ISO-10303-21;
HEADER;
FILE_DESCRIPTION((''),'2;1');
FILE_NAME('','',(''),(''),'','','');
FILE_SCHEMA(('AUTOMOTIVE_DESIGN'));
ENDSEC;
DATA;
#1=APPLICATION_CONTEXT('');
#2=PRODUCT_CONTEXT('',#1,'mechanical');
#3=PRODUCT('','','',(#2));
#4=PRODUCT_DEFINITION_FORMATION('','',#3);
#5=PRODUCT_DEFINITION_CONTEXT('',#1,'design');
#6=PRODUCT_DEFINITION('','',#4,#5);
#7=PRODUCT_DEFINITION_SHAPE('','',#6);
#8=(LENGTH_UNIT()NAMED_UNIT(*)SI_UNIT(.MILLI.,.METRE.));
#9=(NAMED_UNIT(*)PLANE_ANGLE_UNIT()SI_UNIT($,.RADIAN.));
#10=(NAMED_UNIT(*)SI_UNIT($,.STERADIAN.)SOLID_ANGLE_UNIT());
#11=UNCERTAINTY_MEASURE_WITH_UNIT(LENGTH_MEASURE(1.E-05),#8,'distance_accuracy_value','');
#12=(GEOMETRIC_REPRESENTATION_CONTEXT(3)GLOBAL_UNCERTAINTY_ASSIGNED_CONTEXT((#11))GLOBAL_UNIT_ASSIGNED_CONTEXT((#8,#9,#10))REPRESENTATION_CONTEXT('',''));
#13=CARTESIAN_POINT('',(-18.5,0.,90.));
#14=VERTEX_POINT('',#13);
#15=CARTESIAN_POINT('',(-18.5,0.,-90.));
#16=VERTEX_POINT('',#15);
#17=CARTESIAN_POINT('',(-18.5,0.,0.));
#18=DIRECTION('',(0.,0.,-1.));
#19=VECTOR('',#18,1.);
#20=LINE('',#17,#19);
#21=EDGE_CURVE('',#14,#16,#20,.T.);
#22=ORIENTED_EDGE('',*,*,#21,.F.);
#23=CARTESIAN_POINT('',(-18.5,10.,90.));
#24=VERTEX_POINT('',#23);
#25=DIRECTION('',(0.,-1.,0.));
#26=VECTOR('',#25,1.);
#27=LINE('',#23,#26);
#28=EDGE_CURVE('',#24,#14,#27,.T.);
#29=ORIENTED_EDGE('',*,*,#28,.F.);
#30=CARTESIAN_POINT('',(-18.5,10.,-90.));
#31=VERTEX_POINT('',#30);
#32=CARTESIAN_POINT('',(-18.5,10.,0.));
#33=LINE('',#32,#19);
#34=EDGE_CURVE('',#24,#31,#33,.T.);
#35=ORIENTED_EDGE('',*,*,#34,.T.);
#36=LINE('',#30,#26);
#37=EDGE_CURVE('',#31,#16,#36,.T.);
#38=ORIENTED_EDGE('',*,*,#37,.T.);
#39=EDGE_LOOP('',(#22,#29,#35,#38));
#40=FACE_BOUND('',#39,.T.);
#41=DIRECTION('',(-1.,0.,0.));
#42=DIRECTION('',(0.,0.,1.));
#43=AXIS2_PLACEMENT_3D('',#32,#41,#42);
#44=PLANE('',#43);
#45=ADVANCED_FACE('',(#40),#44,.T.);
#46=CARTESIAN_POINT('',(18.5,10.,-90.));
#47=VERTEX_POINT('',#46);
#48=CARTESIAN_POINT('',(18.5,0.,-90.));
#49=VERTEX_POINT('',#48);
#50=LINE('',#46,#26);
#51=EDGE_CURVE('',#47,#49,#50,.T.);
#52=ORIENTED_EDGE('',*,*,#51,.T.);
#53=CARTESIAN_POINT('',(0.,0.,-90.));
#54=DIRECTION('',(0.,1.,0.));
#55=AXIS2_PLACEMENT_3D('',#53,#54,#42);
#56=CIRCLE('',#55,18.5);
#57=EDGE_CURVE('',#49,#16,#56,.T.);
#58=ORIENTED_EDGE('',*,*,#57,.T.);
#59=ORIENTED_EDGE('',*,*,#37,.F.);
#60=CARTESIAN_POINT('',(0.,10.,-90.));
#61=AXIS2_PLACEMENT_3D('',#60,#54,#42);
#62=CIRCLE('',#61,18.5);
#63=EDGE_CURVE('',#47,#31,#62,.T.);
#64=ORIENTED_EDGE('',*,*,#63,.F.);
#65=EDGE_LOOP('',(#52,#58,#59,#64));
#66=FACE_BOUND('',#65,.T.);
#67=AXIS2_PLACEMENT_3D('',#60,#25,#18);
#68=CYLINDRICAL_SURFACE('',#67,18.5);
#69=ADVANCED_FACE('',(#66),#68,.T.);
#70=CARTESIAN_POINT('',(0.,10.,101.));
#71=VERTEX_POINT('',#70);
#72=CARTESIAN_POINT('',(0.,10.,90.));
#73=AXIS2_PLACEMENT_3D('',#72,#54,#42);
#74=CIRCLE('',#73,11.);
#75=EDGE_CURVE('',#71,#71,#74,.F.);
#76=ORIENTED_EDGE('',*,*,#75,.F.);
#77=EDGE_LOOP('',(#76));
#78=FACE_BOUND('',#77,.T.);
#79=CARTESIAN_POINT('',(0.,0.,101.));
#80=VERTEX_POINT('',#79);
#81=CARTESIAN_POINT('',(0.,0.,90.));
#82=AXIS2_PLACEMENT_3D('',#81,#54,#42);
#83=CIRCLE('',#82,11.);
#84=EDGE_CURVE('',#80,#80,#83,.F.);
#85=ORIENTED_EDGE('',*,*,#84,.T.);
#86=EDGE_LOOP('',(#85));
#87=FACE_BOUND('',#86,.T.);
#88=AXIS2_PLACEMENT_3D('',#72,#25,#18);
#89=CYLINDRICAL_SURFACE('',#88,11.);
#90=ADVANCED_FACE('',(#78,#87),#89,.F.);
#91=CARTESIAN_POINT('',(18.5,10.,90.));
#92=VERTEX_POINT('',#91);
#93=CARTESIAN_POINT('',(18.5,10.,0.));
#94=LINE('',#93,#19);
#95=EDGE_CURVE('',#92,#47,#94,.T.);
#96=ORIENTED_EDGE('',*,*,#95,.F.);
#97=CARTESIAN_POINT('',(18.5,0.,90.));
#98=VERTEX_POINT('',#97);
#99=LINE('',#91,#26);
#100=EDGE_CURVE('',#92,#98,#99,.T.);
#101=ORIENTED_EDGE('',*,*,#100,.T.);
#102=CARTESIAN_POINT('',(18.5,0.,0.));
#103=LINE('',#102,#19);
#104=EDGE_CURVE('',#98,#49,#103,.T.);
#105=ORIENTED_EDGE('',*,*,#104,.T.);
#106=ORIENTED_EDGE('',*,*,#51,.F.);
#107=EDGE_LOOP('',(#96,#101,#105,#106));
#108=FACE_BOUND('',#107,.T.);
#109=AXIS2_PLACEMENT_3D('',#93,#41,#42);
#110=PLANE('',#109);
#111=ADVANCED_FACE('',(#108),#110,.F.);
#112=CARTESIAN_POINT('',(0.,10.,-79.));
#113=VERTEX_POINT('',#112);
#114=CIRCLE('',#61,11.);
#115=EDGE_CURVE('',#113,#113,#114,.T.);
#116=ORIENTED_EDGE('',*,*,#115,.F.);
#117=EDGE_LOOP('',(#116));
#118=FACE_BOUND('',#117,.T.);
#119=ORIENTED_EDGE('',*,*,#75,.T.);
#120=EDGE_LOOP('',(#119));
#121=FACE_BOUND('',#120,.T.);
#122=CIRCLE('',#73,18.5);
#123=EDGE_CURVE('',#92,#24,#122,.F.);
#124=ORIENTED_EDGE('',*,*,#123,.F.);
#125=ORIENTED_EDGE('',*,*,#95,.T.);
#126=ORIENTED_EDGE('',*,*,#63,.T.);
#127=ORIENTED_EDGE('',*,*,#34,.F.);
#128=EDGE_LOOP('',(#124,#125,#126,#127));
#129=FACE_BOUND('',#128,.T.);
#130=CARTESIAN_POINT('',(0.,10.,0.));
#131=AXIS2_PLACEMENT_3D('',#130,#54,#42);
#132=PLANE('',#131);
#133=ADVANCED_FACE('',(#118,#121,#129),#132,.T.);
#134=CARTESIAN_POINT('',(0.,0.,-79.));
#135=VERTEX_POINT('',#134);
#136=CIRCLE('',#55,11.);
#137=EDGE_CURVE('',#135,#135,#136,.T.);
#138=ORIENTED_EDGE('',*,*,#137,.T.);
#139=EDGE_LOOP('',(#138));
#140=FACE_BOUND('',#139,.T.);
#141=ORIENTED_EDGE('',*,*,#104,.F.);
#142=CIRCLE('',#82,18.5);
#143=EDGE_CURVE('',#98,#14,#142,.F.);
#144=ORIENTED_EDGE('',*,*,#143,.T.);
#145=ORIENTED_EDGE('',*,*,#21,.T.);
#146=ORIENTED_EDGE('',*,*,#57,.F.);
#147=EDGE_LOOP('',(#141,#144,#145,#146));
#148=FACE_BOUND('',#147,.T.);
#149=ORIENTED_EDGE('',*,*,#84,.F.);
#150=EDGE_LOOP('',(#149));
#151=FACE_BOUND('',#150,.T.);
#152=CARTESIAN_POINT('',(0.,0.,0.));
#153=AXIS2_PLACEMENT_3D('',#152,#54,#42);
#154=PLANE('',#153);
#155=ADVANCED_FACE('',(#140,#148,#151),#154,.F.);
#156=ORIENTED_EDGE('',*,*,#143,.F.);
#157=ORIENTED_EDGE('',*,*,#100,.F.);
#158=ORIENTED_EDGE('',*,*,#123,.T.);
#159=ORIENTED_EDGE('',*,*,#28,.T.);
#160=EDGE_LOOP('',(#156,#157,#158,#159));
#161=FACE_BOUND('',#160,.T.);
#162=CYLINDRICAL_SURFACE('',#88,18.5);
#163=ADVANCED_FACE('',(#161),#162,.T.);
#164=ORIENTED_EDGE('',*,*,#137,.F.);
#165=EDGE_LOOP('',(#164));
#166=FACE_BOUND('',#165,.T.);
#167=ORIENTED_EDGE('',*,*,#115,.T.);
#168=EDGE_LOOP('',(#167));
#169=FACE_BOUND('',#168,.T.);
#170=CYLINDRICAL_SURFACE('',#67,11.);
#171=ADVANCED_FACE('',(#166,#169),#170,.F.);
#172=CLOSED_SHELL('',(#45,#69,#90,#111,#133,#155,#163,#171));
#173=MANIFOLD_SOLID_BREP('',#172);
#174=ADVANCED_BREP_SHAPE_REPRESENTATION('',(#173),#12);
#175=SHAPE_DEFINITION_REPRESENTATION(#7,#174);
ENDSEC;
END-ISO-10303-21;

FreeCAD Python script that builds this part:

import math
import FreeCAD as App
import Part
import Sketcher
from FreeCAD import Vector

doc = App.newDocument("Part")
body = doc.addObject("PartDesign::Body", "Body")

# Sketch on XZ plane
sketch1 = body.newObject("Sketcher::SketchObject", "Sketch")
sketch1.AttachmentSupport = (doc.getObject("XZ_Plane"), [""])
sketch1.MapMode = "FlatFace"
sketch1.addGeometry(Part.LineSegment(Vector(-18, -90, 0), Vector(-18, 90, 0)), False)
sketch1.addGeometry(Part.ArcOfCircle(Part.Circle(Vector(0, 90, 0), Vector(0, 0, 1), 18), math.radians(0), math.radians(180)), False)
sketch1.addGeometry(Part.LineSegment(Vector(18, 90, 0), Vector(18, -90, 0)), False)
sketch1.addGeometry(Part.ArcOfCircle(Part.Circle(Vector(0, -90, 0), Vector(0, 0, 1), 18), math.radians(180), math.radians(360)), False)
sketch1.addGeometry(Part.Circle(Vector(0, 90, 0), Vector(0, 0, 1), 11), False)
sketch1.addGeometry(Part.Circle(Vector(0, -90, 0), Vector(0, 0, 1), 11), False)
sketch1.addConstraint(Sketcher.Constraint("Tangent", 0, 2, 1, 2))
sketch1.addConstraint(Sketcher.Constraint("Tangent", 1, 1, 2, 1))
sketch1.addConstraint(Sketcher.Constraint("Tangent", 2, 2, 3, 2))
sketch1.addConstraint(Sketcher.Constraint("Tangent", 3, 1, 0, 1))
sketch1.addConstraint(Sketcher.Constraint("Vertical", 0))
sketch1.addConstraint(Sketcher.Constraint("Vertical", 2))
sketch1.addConstraint(Sketcher.Constraint("Coincident", 4, 3, 1, 3))
sketch1.addConstraint(Sketcher.Constraint("Coincident", 5, 3, 3, 3))
sketch1.addConstraint(Sketcher.Constraint("Equal", 4, 5))
sketch1.addConstraint(Sketcher.Constraint("Symmetric", 1, 3, 3, 3, -1, 1))
sketch1.addConstraint(Sketcher.Constraint("Diameter", 4, 22.0))
sketch1.addConstraint(Sketcher.Constraint("Radius", 1, 18.5))
sketch1.addConstraint(Sketcher.Constraint("DistanceY", 0, 1, 0, 2, 180.0))
pad1 = body.newObject("PartDesign::Pad", "Pad")
pad1.Profile = sketch1
pad1.Length = 10
pad1.Reversed = True

doc.recompute()
